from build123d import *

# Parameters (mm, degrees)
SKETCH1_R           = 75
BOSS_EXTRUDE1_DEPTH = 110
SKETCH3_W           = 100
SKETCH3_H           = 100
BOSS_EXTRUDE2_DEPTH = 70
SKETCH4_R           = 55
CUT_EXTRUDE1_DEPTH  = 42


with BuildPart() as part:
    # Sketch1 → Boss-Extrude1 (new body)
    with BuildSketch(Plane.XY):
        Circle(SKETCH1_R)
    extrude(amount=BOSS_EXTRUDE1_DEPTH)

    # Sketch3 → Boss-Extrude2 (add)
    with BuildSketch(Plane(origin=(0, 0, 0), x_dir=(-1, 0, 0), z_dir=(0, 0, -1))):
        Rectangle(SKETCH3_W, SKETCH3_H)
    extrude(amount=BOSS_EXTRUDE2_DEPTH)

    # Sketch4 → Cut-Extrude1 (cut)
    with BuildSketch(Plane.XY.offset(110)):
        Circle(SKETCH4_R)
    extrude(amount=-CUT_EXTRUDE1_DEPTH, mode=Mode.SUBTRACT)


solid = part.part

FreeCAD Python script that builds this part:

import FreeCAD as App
import Part
import Sketcher
from FreeCAD import Vector

doc = App.newDocument("Part")
params = doc.addObject("Spreadsheet::Sheet", "Params")
for row, (alias, value) in enumerate([
    ("sketch1_diameter", "150 mm"),
    ("pad1_length", "110 mm"),
    ("sketch2_width", "100 mm"),
    ("pad2_length", "70 mm"),
    ("sketch3_diameter", "110 mm"),
    ("pocket1_length", "42 mm"),
], start=1):
    params.set(f"A{row}", alias)
    params.set(f"B{row}", "=" + value)
    params.setAlias(f"B{row}", alias)

body = doc.addObject("PartDesign::Body", "Body")

# Sketch on XY plane
sketch1 = body.newObject("Sketcher::SketchObject", "Sketch")
sketch1.AttachmentSupport = (doc.getObject("XY_Plane"), [""])
sketch1.MapMode = "FlatFace"
sketch1.addGeometry(Part.Circle(Vector(0, 0, 0), Vector(0, 0, 1), 75), False)
sketch1.addConstraint(Sketcher.Constraint("Coincident", 0, 3, -1, 1))
sketch1.addConstraint(Sketcher.Constraint("Diameter", 0, 150.0))
sketch1.setExpression("Constraints[1]", "Params.sketch1_diameter")
pad1 = body.newObject("PartDesign::Pad", "Pad")
pad1.Profile = sketch1
pad1.setExpression("Length", "Params.pad1_length")

# Sketch on XY plane
sketch2 = body.newObject("Sketcher::SketchObject", "Sketch001")
sketch2.AttachmentSupport = (doc.getObject("XY_Plane"), [""])
sketch2.MapMode = "FlatFace"
sketch2.addGeometry(Part.LineSegment(Vector(50, 50, 0), Vector(50, -50, 0)), False)
sketch2.addGeometry(Part.LineSegment(Vector(50, -50, 0), Vector(-50, -50, 0)), False)
sketch2.addGeometry(Part.LineSegment(Vector(-50, -50, 0), Vector(-50, 50, 0)), False)
sketch2.addGeometry(Part.LineSegment(Vector(-50, 50, 0), Vector(50, 50, 0)), False)
sketch2.addConstraint(Sketcher.Constraint("Coincident", 0, 2, 1, 1))
sketch2.addConstraint(Sketcher.Constraint("Coincident", 1, 2, 2, 1))
sketch2.addConstraint(Sketcher.Constraint("Coincident", 2, 2, 3, 1))
sketch2.addConstraint(Sketcher.Constraint("Coincident", 3, 2, 0, 1))
sketch2.addConstraint(Sketcher.Constraint("Vertical", 0))
sketch2.addConstraint(Sketcher.Constraint("Horizontal", 1))
sketch2.addConstraint(Sketcher.Constraint("Vertical", 2))
sketch2.addConstraint(Sketcher.Constraint("Horizontal", 3))
sketch2.addConstraint(Sketcher.Constraint("Symmetric", 0, 2, 2, 2, -1, 1))
sketch2.addConstraint(Sketcher.Constraint("Equal", 3, 0))
sketch2.addConstraint(Sketcher.Constraint("DistanceX", 1, 2, 1, 1, 100.0))
sketch2.setExpression("Constraints[10]", "Params.sketch2_width")
pad2 = body.newObject("PartDesign::Pad", "Pad001")
pad2.Profile = sketch2
pad2.setExpression("Length", "Params.pad2_length")
pad2.Reversed = True

# Sketch on XY plane
sketch3 = body.newObject("Sketcher::SketchObject", "Sketch002")
sketch3.AttachmentSupport = (doc.getObject("XY_Plane"), [""])
sketch3.MapMode = "FlatFace"
sketch3.AttachmentOffset = App.Placement(Vector(0, 0, 110), App.Rotation())
sketch3.addGeometry(Part.Circle(Vector(0, 0, 0), Vector(0, 0, 1), 55), False)
sketch3.addConstraint(Sketcher.Constraint("Coincident", 0, 3, -1, 1))
sketch3.addConstraint(Sketcher.Constraint("Diameter", 0, 110.0))
sketch3.setExpression("Constraints[1]", "Params.sketch3_diameter")
pocket1 = body.newObject("PartDesign::Pocket", "Pocket")
pocket1.Profile = sketch3
pocket1.setExpression("Length", "Params.pocket1_length")

doc.recompute()
